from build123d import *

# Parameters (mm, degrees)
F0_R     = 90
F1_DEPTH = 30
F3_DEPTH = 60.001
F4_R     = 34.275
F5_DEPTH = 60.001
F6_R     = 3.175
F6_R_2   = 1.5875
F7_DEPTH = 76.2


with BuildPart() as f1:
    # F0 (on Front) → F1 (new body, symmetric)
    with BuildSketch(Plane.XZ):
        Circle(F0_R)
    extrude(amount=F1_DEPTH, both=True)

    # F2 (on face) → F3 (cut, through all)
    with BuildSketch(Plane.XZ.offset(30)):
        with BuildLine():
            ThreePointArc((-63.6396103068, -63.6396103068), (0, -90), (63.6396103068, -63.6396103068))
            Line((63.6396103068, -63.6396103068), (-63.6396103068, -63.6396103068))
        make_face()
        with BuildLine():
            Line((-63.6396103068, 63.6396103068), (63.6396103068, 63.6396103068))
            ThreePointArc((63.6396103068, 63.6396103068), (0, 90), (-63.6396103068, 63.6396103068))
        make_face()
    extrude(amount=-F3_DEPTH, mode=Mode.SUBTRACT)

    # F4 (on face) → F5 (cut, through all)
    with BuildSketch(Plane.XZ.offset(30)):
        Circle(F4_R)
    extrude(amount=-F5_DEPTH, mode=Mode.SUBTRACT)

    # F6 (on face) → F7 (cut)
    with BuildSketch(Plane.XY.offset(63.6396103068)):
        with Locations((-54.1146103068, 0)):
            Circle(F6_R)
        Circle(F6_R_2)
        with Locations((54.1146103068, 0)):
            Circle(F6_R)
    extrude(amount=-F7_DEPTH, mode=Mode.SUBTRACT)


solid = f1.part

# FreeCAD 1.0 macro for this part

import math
import FreeCAD as App
import Part
import Sketcher
Q = App.Units.Quantity

doc = App.newDocument("Part")
params = doc.addObject("Spreadsheet::Sheet", "Params")
for row, (alias, value) in enumerate([
    ("pad1_length", "60 mm"),
    ("sketch4_diameter", "0.25 in"),
    ("sketch4_diameter2", "0.125 in"),
    ("pocket3_length", "3 in"),
], start=1):
    params.set(f"A{row}", alias)
    params.set(f"B{row}", "=" + value)
    params.setAlias(f"B{row}", alias)

body = doc.addObject("PartDesign::Body", "Body")

# Sketch on XZ plane
sketch1 = body.newObject("Sketcher::SketchObject", "Sketch")
sketch1.AttachmentSupport = (doc.getObject("XZ_Plane"), [""])
sketch1.MapMode = "FlatFace"
sketch1.addGeometry(Part.Circle(App.Vector(0, 0, 0), App.Vector(0, 0, 1), 90), False)
sketch1.addConstraint([
    Sketcher.Constraint("Coincident", 0, 3, -1, 1),
    Sketcher.Constraint("Diameter", 0, 180.0),
])
pad1 = body.newObject("PartDesign::Pad", "Pad")
pad1.Profile = sketch1
pad1.setExpression("Length", "Params.pad1_length")
pad1.Midplane = True

# Sketch on XZ plane
sketch2 = body.newObject("Sketcher::SketchObject", "Sketch001")
sketch2.AttachmentSupport = (doc.getObject("XZ_Plane"), [""])
sketch2.MapMode = "FlatFace"
sketch2.AttachmentOffset = App.Placement(App.Vector(0, 0, 30), App.Rotation())
sketch2.addGeometry([
    Part.ArcOfCircle(Part.Circle(App.Vector(0, 0, 0), App.Vector(0, 0, 1), 90), math.radians(-135), math.radians(-45)),
    Part.LineSegment(App.Vector(63.63961, -63.63961, 0), App.Vector(-63.63961, -63.63961, 0)),
    Part.LineSegment(App.Vector(-63.63961, 63.63961, 0), App.Vector(63.63961, 63.63961, 0)),
    Part.ArcOfCircle(Part.Circle(App.Vector(0, 0, 0), App.Vector(0, 0, 1), 90), math.radians(45), math.radians(135)),
], False)
sketch2.addConstraint([
    Sketcher.Constraint("Coincident", 0, 1, 1, 2),
    Sketcher.Constraint("Coincident", 1, 1, 0, 2),
    Sketcher.Constraint("Coincident", 2, 1, 3, 2),
    Sketcher.Constraint("Coincident", 3, 1, 2, 2),
    Sketcher.Constraint("Horizontal", 1),
    Sketcher.Constraint("Horizontal", 2),
    Sketcher.Constraint("Coincident", 0, 3, -1, 1),
    Sketcher.Constraint("Coincident", 3, 3, -1, 1),
    Sketcher.Constraint("Equal", 0, 3),
    Sketcher.Constraint("Vertical", 0, 1, 2, 1),
    Sketcher.Constraint("Radius", 0, 90.0),
    Sketcher.Constraint("DistanceX", 1, 2, 1, 1, 127.279221),
])
pocket1 = body.newObject("PartDesign::Pocket", "Pocket")
pocket1.Profile = sketch2
pocket1.Type = "ThroughAll"

# Sketch on XZ plane
sketch3 = body.newObject("Sketcher::SketchObject", "Sketch002")
sketch3.AttachmentSupport = (doc.getObject("XZ_Plane"), [""])
sketch3.MapMode = "FlatFace"
sketch3.AttachmentOffset = App.Placement(App.Vector(0, 0, 30), App.Rotation())
sketch3.addGeometry(Part.Circle(App.Vector(0, 0, 0), App.Vector(0, 0, 1), 34.275), False)
sketch3.addConstraint([
    Sketcher.Constraint("Coincident", 0, 3, -1, 1),
    Sketcher.Constraint("Diameter", 0, 68.55),
])
pocket2 = body.newObject("PartDesign::Pocket", "Pocket001")
pocket2.Profile = sketch3
pocket2.Type = "ThroughAll"

# Sketch on XY plane
sketch4 = body.newObject("Sketcher::SketchObject", "Sketch003")
sketch4.AttachmentSupport = (doc.getObject("XY_Plane"), [""])
sketch4.MapMode = "FlatFace"
sketch4.AttachmentOffset = App.Placement(App.Vector(0, 0, 63.63961), App.Rotation())
sketch4.addGeometry([
    Part.Circle(App.Vector(-54.11461, 0, 0), App.Vector(0, 0, 1), 3.175),
    Part.Circle(App.Vector(0, 0, 0), App.Vector(0, 0, 1), 1.5875),
    Part.Circle(App.Vector(54.11461, 0, 0), App.Vector(0, 0, 1), 3.175),
], False)
sketch4.addConstraint([
    Sketcher.Constraint("Coincident", 1, 3, -1, 1),
    Sketcher.Constraint("Equal", 0, 2),
    Sketcher.Constraint("Symmetric", 0, 3, 2, 3, -1, 1),
    Sketcher.Constraint("PointOnObject", 0, 3, -1),
    Sketcher.Constraint("Diameter", 0, Q("0.25 in")),
    Sketcher.Constraint("Diameter", 1, Q("0.125 in")),
    Sketcher.Constraint("DistanceX", 0, 3, -1, 1, 54.11461),
])
sketch4.setExpression("Constraints[4]", "Params.sketch4_diameter")
sketch4.setExpression("Constraints[5]", "Params.sketch4_diameter2")
pocket3 = body.newObject("PartDesign::Pocket", "Pocket002")
pocket3.Profile = sketch4
pocket3.setExpression("Length", "Params.pocket3_length")

doc.recompute()
